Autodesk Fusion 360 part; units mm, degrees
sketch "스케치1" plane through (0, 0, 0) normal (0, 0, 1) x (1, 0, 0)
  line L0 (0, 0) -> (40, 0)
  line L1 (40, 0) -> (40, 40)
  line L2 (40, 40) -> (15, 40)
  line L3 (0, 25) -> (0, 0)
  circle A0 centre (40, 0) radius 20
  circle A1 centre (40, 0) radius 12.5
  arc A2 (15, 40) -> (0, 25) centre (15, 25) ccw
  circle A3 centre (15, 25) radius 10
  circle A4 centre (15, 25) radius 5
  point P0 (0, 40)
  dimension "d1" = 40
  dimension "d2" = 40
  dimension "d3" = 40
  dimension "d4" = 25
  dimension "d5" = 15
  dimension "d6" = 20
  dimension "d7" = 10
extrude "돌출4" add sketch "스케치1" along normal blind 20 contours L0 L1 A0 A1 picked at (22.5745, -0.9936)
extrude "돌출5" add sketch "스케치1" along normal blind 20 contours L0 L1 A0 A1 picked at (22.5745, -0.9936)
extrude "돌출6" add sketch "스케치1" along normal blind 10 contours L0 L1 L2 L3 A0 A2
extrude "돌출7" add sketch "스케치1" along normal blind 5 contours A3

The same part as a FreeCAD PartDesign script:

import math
import FreeCAD as App
import Part
import Sketcher
from FreeCAD import Vector
Q = App.Units.Quantity

doc = App.newDocument("Part")
body = doc.addObject("PartDesign::Body", "Body")
body.AllowCompound = True

# Sketch on XY plane
sketch1 = doc.addObject("Sketcher::SketchObject", "Sketch")
body.addObject(sketch1)
sketch1.AttachmentSupport = (doc.XY_Plane, [""])
sketch1.MapMode = "FlatFace"
sketch1.addGeometry(Part.LineSegment(Vector(27.5, 0, 0), Vector(20, 0, 0)), False)
sketch1.addGeometry(Part.ArcOfCircle(Part.Circle(Vector(40, 0, 0), Vector(0, 0, 1), 20), math.radians(180), math.radians(450)), False)
sketch1.addGeometry(Part.LineSegment(Vector(40, 20, 0), Vector(40, 12.5, 0)), False)
sketch1.addGeometry(Part.ArcOfCircle(Part.Circle(Vector(40, 0, 0), Vector(0, 0, 1), 12.5), math.radians(180), math.radians(450)), False)
sketch1.addConstraint(Sketcher.Constraint("Coincident", 0, 2, 1, 1))
sketch1.addConstraint(Sketcher.Constraint("Coincident", 1, 2, 2, 1))
sketch1.addConstraint(Sketcher.Constraint("Coincident", 2, 2, 3, 2))
sketch1.addConstraint(Sketcher.Constraint("Coincident", 3, 1, 0, 1))
sketch1.addConstraint(Sketcher.Constraint("Horizontal", 0))
sketch1.addConstraint(Sketcher.Constraint("Vertical", 2))
sketch1.addConstraint(Sketcher.Constraint("Coincident", 3, 3, 1, 3))
sketch1.addConstraint(Sketcher.Constraint("PointOnObject", 1, 3, -1))
sketch1.addConstraint(Sketcher.Constraint("PointOnObject", 0, 2, -1))
sketch1.addConstraint(Sketcher.Constraint("Vertical", 3, 3, 1, 2))
sketch1.addConstraint(Sketcher.Constraint("Radius", 1, Q("20 mm")))
sketch1.addConstraint(Sketcher.Constraint("Radius", 3, Q("12.5 mm")))
sketch1.addConstraint(Sketcher.Constraint("DistanceX", -1, 1, 1, 3, Q("40 mm")))
pad1 = doc.addObject("PartDesign::Pad", "Pad")
body.addObject(pad1)
pad1.Profile = sketch1
pad1.Length = 20

# Sketch on XY plane
sketch2 = doc.addObject("Sketcher::SketchObject", "Sketch001")
body.addObject(sketch2)
sketch2.AttachmentSupport = (doc.XY_Plane, [""])
sketch2.MapMode = "FlatFace"
sketch2.addGeometry(Part.LineSegment(Vector(27.5, 0, 0), Vector(20, 0, 0)), False)
sketch2.addGeometry(Part.ArcOfCircle(Part.Circle(Vector(40, 0, 0), Vector(0, 0, 1), 20), math.radians(180), math.radians(450)), False)
sketch2.addGeometry(Part.LineSegment(Vector(40, 20, 0), Vector(40, 12.5, 0)), False)
sketch2.addGeometry(Part.ArcOfCircle(Part.Circle(Vector(40, 0, 0), Vector(0, 0, 1), 12.5), math.radians(180), math.radians(450)), False)
sketch2.addConstraint(Sketcher.Constraint("Coincident", 0, 2, 1, 1))
sketch2.addConstraint(Sketcher.Constraint("Coincident", 1, 2, 2, 1))
sketch2.addConstraint(Sketcher.Constraint("Coincident", 2, 2, 3, 2))
sketch2.addConstraint(Sketcher.Constraint("Coincident", 3, 1, 0, 1))
sketch2.addConstraint(Sketcher.Constraint("Horizontal", 0))
sketch2.addConstraint(Sketcher.Constraint("Vertical", 2))
sketch2.addConstraint(Sketcher.Constraint("Coincident", 3, 3, 1, 3))
sketch2.addConstraint(Sketcher.Constraint("PointOnObject", 1, 3, -1))
sketch2.addConstraint(Sketcher.Constraint("PointOnObject", 0, 2, -1))
sketch2.addConstraint(Sketcher.Constraint("Vertical", 3, 3, 1, 2))
sketch2.addConstraint(Sketcher.Constraint("Radius", 1, Q("20 mm")))
sketch2.addConstraint(Sketcher.Constraint("Radius", 3, Q("12.5 mm")))
sketch2.addConstraint(Sketcher.Constraint("DistanceX", -1, 1, 1, 3, Q("40 mm")))
pad2 = doc.addObject("PartDesign::Pad", "Pad001")
body.addObject(pad2)
pad2.Profile = sketch2
pad2.Length = 20

# Sketch on XY plane
sketch3 = doc.addObject("Sketcher::SketchObject", "Sketch002")
body.addObject(sketch3)
sketch3.AttachmentSupport = (doc.XY_Plane, [""])
sketch3.MapMode = "FlatFace"
sketch3.addGeometry(Part.LineSegment(Vector(0, 25, 0), Vector(0, 0, 0)), False)
sketch3.addGeometry(Part.LineSegment(Vector(0, 0, 0), Vector(20, 0, 0)), False)
sketch3.addGeometry(Part.ArcOfCircle(Part.Circle(Vector(40, 0, 0), Vector(0, 0, 1), 20), math.radians(90), math.radians(180)), False)
sketch3.addGeometry(Part.LineSegment(Vector(40, 20, 0), Vector(40, 40, 0)), False)
sketch3.addGeometry(Part.LineSegment(Vector(40, 40, 0), Vector(15, 40, 0)), False)
sketch3.addGeometry(Part.ArcOfCircle(Part.Circle(Vector(15, 25, 0), Vector(0, 0, 1), 15), math.radians(90), math.radians(180)), False)
sketch3.addGeometry(Part.Circle(Vector(15, 25, 0), Vector(0, 0, 1), 10), False)
sketch3.addConstraint(Sketcher.Constraint("Coincident", 0, 2, 1, 1))
sketch3.addConstraint(Sketcher.Constraint("Coincident", 1, 2, 2, 2))
sketch3.addConstraint(Sketcher.Constraint("Coincident", 2, 1, 3, 1))
sketch3.addConstraint(Sketcher.Constraint("Coincident", 3, 2, 4, 1))
sketch3.addConstraint(Sketcher.Constraint("Tangent", 4, 2, 5, 1))
sketch3.addConstraint(Sketcher.Constraint("Tangent", 5, 2, 0, 1))
sketch3.addConstraint(Sketcher.Constraint("Vertical", 0))
sketch3.addConstraint(Sketcher.Constraint("Horizontal", 1))
sketch3.addConstraint(Sketcher.Constraint("Vertical", 3))
sketch3.addConstraint(Sketcher.Constraint("Horizontal", 4))
sketch3.addConstraint(Sketcher.Constraint("Coincident", 0, 2, -1, 1))
sketch3.addConstraint(Sketcher.Constraint("Coincident", 6, 3, 5, 3))
sketch3.addConstraint(Sketcher.Constraint("PointOnObject", 2, 3, -1))
sketch3.addConstraint(Sketcher.Constraint("Equal", 4, 0))
sketch3.addConstraint(Sketcher.Constraint("Equal", 1, 3))
sketch3.addConstraint(Sketcher.Constraint("Diameter", 6, Q("20 mm")))
sketch3.addConstraint(Sketcher.Constraint("Radius", 2, Q("20 mm")))
sketch3.addConstraint(Sketcher.Constraint("Radius", 5, Q("15 mm")))
sketch3.addConstraint(Sketcher.Constraint("DistanceX", 1, 1, 1, 2, Q("20 mm")))
pad3 = doc.addObject("PartDesign::Pad", "Pad002")
body.addObject(pad3)
pad3.Profile = sketch3
pad3.Length = 10

# Sketch on XY plane
sketch4 = doc.addObject("Sketcher::SketchObject", "Sketch003")
body.addObject(sketch4)
sketch4.AttachmentSupport = (doc.XY_Plane, [""])
sketch4.MapMode = "FlatFace"
sketch4.addGeometry(Part.Circle(Vector(15, 25, 0), Vector(0, 0, 1), 10), False)
sketch4.addGeometry(Part.Circle(Vector(15, 25, 0), Vector(0, 0, 1), 5), False)
sketch4.addConstraint(Sketcher.Constraint("Coincident", 1, 3, 0, 3))
sketch4.addConstraint(Sketcher.Constraint("Diameter", 0, Q("20 mm")))
sketch4.addConstraint(Sketcher.Constraint("Diameter", 1, Q("10 mm")))
sketch4.addConstraint(Sketcher.Constraint("DistanceX", -1, 1, 0, 3, Q("15 mm")))
sketch4.addConstraint(Sketcher.Constraint("DistanceY", -1, 1, 0, 3, Q("25 mm")))
pad4 = doc.addObject("PartDesign::Pad", "Pad003")
body.addObject(pad4)
pad4.Profile = sketch4
pad4.Length = 5

doc.recompute()
